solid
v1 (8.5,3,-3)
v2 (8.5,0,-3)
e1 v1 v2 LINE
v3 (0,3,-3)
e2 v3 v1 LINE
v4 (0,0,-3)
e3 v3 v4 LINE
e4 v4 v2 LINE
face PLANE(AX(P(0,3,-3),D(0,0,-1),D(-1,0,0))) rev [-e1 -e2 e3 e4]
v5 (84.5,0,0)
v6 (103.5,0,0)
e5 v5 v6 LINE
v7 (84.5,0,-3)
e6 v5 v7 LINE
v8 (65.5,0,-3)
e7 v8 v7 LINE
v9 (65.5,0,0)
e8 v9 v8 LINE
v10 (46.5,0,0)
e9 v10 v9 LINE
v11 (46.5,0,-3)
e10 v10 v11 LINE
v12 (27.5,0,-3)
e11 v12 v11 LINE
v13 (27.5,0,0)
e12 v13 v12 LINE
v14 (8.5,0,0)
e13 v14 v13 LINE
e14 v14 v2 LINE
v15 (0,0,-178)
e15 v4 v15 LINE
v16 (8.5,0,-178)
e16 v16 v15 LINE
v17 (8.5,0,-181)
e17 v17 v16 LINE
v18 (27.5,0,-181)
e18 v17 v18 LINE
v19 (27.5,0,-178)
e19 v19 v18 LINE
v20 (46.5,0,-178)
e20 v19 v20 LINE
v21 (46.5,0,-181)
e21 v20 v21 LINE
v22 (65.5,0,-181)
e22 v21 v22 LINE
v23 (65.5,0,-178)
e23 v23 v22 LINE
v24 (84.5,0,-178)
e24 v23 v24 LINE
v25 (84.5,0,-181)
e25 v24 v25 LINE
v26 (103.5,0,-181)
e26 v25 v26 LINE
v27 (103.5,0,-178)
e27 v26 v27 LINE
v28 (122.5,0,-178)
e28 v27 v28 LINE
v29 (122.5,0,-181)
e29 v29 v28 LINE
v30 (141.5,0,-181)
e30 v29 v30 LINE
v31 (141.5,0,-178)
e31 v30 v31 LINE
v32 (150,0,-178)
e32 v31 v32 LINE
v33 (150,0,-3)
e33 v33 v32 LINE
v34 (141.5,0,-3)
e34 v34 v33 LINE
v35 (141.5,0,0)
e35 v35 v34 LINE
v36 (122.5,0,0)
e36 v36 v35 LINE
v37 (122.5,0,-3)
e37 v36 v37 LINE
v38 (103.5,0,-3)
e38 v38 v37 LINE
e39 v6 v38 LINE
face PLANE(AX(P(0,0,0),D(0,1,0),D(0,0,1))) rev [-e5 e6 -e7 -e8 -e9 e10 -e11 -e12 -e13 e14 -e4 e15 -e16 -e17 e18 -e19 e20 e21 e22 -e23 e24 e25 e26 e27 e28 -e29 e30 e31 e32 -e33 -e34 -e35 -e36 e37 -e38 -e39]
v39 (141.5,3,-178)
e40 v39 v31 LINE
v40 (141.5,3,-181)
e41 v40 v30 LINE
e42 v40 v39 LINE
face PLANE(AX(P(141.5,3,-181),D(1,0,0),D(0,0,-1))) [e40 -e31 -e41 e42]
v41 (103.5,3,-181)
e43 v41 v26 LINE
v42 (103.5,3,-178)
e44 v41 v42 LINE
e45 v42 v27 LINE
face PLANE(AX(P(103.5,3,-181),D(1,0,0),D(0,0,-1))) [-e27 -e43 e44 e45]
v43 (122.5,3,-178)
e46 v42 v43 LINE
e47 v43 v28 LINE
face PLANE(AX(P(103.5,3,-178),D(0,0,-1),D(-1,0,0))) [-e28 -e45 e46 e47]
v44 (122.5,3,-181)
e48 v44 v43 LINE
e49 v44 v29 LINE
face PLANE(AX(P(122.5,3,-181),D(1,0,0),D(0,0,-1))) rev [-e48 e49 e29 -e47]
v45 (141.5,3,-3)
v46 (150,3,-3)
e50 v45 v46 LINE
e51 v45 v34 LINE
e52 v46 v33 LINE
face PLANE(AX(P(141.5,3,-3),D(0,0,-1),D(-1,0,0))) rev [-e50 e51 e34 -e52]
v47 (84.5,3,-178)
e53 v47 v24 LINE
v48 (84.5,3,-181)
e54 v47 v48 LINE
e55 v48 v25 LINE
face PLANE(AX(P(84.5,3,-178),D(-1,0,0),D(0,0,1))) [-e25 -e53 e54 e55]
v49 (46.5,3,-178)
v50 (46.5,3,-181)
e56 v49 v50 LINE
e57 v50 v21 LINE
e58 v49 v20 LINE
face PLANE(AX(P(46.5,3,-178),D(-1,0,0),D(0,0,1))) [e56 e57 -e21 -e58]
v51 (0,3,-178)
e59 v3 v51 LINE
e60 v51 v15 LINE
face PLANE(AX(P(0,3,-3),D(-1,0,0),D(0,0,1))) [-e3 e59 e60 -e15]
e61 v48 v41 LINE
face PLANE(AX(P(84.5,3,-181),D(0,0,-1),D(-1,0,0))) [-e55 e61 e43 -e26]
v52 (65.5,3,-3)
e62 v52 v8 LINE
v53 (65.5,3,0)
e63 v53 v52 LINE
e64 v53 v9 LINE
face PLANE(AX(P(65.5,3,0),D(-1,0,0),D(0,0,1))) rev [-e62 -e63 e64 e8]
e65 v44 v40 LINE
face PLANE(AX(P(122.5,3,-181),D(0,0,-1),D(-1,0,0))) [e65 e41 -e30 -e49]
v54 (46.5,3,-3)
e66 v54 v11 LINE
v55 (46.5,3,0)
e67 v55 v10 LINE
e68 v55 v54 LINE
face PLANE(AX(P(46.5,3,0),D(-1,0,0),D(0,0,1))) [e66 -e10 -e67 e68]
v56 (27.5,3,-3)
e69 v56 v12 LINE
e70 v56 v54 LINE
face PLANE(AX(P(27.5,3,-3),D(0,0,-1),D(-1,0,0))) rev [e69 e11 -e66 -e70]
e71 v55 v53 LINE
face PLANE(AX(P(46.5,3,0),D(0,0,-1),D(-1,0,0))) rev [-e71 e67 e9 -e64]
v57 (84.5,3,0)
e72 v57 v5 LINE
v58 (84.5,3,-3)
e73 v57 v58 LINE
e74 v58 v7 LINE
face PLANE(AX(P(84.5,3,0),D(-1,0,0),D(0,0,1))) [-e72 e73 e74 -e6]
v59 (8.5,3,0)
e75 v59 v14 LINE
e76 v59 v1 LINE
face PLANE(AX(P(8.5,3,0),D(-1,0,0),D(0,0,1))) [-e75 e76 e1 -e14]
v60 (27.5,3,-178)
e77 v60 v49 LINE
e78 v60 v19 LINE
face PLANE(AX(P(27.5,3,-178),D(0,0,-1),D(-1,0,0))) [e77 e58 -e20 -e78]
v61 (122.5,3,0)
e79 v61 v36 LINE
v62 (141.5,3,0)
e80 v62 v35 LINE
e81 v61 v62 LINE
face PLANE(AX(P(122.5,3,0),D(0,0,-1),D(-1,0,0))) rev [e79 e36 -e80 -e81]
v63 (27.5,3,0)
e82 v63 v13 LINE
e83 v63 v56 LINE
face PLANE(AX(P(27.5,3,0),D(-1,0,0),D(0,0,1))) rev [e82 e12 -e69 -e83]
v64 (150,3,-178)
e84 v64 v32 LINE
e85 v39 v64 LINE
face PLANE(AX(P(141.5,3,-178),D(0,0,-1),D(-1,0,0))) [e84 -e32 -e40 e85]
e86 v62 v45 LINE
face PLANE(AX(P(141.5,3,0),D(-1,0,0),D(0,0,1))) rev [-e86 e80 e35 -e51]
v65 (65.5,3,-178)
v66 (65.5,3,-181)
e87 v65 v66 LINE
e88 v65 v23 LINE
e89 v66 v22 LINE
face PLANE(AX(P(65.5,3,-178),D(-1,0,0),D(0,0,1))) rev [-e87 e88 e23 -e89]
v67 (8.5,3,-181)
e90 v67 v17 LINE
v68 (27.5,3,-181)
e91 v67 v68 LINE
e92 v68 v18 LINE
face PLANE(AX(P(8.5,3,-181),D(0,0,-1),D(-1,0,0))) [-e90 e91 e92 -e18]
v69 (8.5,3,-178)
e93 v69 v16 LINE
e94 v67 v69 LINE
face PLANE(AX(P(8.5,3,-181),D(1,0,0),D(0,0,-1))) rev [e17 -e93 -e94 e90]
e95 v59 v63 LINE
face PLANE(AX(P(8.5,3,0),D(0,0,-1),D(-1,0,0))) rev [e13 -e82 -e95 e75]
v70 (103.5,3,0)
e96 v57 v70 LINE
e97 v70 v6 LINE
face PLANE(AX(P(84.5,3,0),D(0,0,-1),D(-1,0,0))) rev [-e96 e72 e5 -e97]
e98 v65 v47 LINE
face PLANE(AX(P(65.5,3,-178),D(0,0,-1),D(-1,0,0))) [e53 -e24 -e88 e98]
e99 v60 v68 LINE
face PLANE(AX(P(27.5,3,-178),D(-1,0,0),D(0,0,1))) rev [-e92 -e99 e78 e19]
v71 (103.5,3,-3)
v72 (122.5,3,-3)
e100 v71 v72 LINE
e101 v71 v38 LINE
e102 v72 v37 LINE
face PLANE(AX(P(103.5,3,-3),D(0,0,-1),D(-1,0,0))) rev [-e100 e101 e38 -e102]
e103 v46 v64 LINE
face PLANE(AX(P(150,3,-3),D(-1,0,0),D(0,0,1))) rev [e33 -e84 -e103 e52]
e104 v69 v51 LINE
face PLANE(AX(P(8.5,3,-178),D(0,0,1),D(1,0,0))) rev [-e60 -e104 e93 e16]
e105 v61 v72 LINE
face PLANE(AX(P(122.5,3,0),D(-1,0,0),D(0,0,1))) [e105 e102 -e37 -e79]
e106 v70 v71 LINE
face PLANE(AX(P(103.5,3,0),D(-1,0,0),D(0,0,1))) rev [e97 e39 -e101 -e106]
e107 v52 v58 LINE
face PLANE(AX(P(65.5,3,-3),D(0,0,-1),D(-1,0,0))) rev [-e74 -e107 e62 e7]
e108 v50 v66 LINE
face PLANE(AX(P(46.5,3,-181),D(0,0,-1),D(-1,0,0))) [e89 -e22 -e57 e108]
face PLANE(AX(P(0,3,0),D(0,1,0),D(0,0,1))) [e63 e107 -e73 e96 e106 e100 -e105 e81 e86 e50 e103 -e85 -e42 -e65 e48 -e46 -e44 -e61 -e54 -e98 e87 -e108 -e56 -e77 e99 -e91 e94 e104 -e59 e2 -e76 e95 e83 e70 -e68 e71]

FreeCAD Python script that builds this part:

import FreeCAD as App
import Part
import Sketcher

V = App.Vector

doc = App.newDocument("Part")
params = doc.addObject("Spreadsheet::Sheet", "Params")
for row, (alias, value) in enumerate([
    ("sketch1_width", "19 mm"),
    ("sketch1_height", "3 mm"),
    ("sketch1_height2", "175 mm"),
    ("sketch1_width2", "8.5 mm"),
    ("pad1_length", "3 mm"),
], start=1):
    params.set(f"A{row}", alias)
    params.set(f"B{row}", "=" + value)
    params.setAlias(f"B{row}", alias)

body = doc.addObject("PartDesign::Body", "Body")

sketch1 = body.newObject("Sketcher::SketchObject", "Sketch")
sketch1.AttachmentSupport = (doc.getObject("XZ_Plane"), [""])
sketch1.MapMode = "FlatFace"
sketch1.addGeometry([
    Part.LineSegment(V(65.5, -181, 0), V(46.5, -181, 0)),
    Part.LineSegment(V(46.5, -181, 0), V(46.5, -178, 0)),
    Part.LineSegment(V(46.5, -178, 0), V(27.5, -178, 0)),
    Part.LineSegment(V(27.5, -178, 0), V(27.5, -181, 0)),
    Part.LineSegment(V(27.5, -181, 0), V(8.5, -181, 0)),
    Part.LineSegment(V(8.5, -181, 0), V(8.5, -178, 0)),
    Part.LineSegment(V(8.5, -178, 0), V(0, -178, 0)),
    Part.LineSegment(V(0, -178, 0), V(0, -3, 0)),
    Part.LineSegment(V(0, -3, 0), V(8.5, -3, 0)),
    Part.LineSegment(V(8.5, -3, 0), V(8.5, 0, 0)),
    Part.LineSegment(V(8.5, 0, 0), V(27.5, 0, 0)),
    Part.LineSegment(V(27.5, 0, 0), V(27.5, -3, 0)),
    Part.LineSegment(V(27.5, -3, 0), V(46.5, -3, 0)),
    Part.LineSegment(V(46.5, -3, 0), V(46.5, 0, 0)),
    Part.LineSegment(V(46.5, 0, 0), V(65.5, 0, 0)),
    Part.LineSegment(V(65.5, 0, 0), V(65.5, -3, 0)),
    Part.LineSegment(V(65.5, -3, 0), V(84.5, -3, 0)),
    Part.LineSegment(V(84.5, -3, 0), V(84.5, 0, 0)),
    Part.LineSegment(V(84.5, 0, 0), V(103.5, 0, 0)),
    Part.LineSegment(V(103.5, 0, 0), V(103.5, -3, 0)),
    Part.LineSegment(V(103.5, -3, 0), V(122.5, -3, 0)),
    Part.LineSegment(V(122.5, -3, 0), V(122.5, 0, 0)),
    Part.LineSegment(V(122.5, 0, 0), V(141.5, 0, 0)),
    Part.LineSegment(V(141.5, 0, 0), V(141.5, -3, 0)),
    Part.LineSegment(V(141.5, -3, 0), V(150, -3, 0)),
    Part.LineSegment(V(150, -3, 0), V(150, -178, 0)),
    Part.LineSegment(V(150, -178, 0), V(141.5, -178, 0)),
    Part.LineSegment(V(141.5, -178, 0), V(141.5, -181, 0)),
    Part.LineSegment(V(141.5, -181, 0), V(122.5, -181, 0)),
    Part.LineSegment(V(122.5, -181, 0), V(122.5, -178, 0)),
    Part.LineSegment(V(122.5, -178, 0), V(103.5, -178, 0)),
    Part.LineSegment(V(103.5, -178, 0), V(103.5, -181, 0)),
    Part.LineSegment(V(103.5, -181, 0), V(84.5, -181, 0)),
    Part.LineSegment(V(84.5, -181, 0), V(84.5, -178, 0)),
    Part.LineSegment(V(84.5, -178, 0), V(65.5, -178, 0)),
    Part.LineSegment(V(65.5, -178, 0), V(65.5, -181, 0)),
], False)
sketch1.addConstraint([
    Sketcher.Constraint("Coincident", 0, 2, 1, 1),
    Sketcher.Constraint("Coincident", 1, 2, 2, 1),
    Sketcher.Constraint("Coincident", 2, 2, 3, 1),
    Sketcher.Constraint("Coincident", 3, 2, 4, 1),
    Sketcher.Constraint("Coincident", 4, 2, 5, 1),
    Sketcher.Constraint("Coincident", 5, 2, 6, 1),
    Sketcher.Constraint("Coincident", 6, 2, 7, 1),
    Sketcher.Constraint("Coincident", 7, 2, 8, 1),
    Sketcher.Constraint("Coincident", 8, 2, 9, 1),
    Sketcher.Constraint("Coincident", 9, 2, 10, 1),
    Sketcher.Constraint("Coincident", 10, 2, 11, 1),
    Sketcher.Constraint("Coincident", 11, 2, 12, 1),
    Sketcher.Constraint("Coincident", 12, 2, 13, 1),
    Sketcher.Constraint("Coincident", 13, 2, 14, 1),
    Sketcher.Constraint("Coincident", 14, 2, 15, 1),
    Sketcher.Constraint("Coincident", 15, 2, 16, 1),
    Sketcher.Constraint("Coincident", 16, 2, 17, 1),
    Sketcher.Constraint("Coincident", 17, 2, 18, 1),
    Sketcher.Constraint("Coincident", 18, 2, 19, 1),
    Sketcher.Constraint("Coincident", 19, 2, 20, 1),
    Sketcher.Constraint("Coincident", 20, 2, 21, 1),
    Sketcher.Constraint("Coincident", 21, 2, 22, 1),
    Sketcher.Constraint("Coincident", 22, 2, 23, 1),
    Sketcher.Constraint("Coincident", 23, 2, 24, 1),
    Sketcher.Constraint("Coincident", 24, 2, 25, 1),
    Sketcher.Constraint("Coincident", 25, 2, 26, 1),
    Sketcher.Constraint("Coincident", 26, 2, 27, 1),
    Sketcher.Constraint("Coincident", 27, 2, 28, 1),
    Sketcher.Constraint("Coincident", 28, 2, 29, 1),
    Sketcher.Constraint("Coincident", 29, 2, 30, 1),
    Sketcher.Constraint("Coincident", 30, 2, 31, 1),
    Sketcher.Constraint("Coincident", 31, 2, 32, 1),
    Sketcher.Constraint("Coincident", 32, 2, 33, 1),
    Sketcher.Constraint("Coincident", 33, 2, 34, 1),
    Sketcher.Constraint("Coincident", 34, 2, 35, 1),
    Sketcher.Constraint("Coincident", 35, 2, 0, 1),
    Sketcher.Constraint("Horizontal", 0),
    Sketcher.Constraint("Vertical", 1),
    Sketcher.Constraint("Horizontal", 2),
    Sketcher.Constraint("Vertical", 3),
    Sketcher.Constraint("Horizontal", 4),
    Sketcher.Constraint("Vertical", 5),
    Sketcher.Constraint("Horizontal", 6),
    Sketcher.Constraint("Vertical", 7),
    Sketcher.Constraint("Horizontal", 8),
    Sketcher.Constraint("Vertical", 9),
    Sketcher.Constraint("Horizontal", 10),
    Sketcher.Constraint("Vertical", 11),
    Sketcher.Constraint("Horizontal", 12),
    Sketcher.Constraint("Vertical", 13),
    Sketcher.Constraint("Horizontal", 14),
    Sketcher.Constraint("Vertical", 15),
    Sketcher.Constraint("Horizontal", 16),
    Sketcher.Constraint("Vertical", 17),
    Sketcher.Constraint("Horizontal", 18),
    Sketcher.Constraint("Vertical", 19),
    Sketcher.Constraint("Horizontal", 20),
    Sketcher.Constraint("Vertical", 21),
    Sketcher.Constraint("Horizontal", 22),
    Sketcher.Constraint("Vertical", 23),
    Sketcher.Constraint("Horizontal", 24),
    Sketcher.Constraint("Vertical", 25),
    Sketcher.Constraint("Horizontal", 26),
    Sketcher.Constraint("Vertical", 27),
    Sketcher.Constraint("Horizontal", 28),
    Sketcher.Constraint("Vertical", 29),
    Sketcher.Constraint("Horizontal", 30),
    Sketcher.Constraint("Vertical", 31),
    Sketcher.Constraint("Horizontal", 32),
    Sketcher.Constraint("Vertical", 33),
    Sketcher.Constraint("Horizontal", 34),
    Sketcher.Constraint("Vertical", 35),
    Sketcher.Constraint("PointOnObject", 6, 2, -2),
    Sketcher.Constraint("PointOnObject", 9, 2, -1),
    Sketcher.Constraint("PointOnObject", 13, 2, -1),
    Sketcher.Constraint("PointOnObject", 17, 2, -1),
    Sketcher.Constraint("PointOnObject", 21, 2, -1),
    Sketcher.Constraint("Horizontal", 0, 2, 3, 2),
    Sketcher.Constraint("Horizontal", 2, 2, 5, 2),
    Sketcher.Constraint("Horizontal", 8, 2, 11, 2),
    Sketcher.Constraint("Horizontal", 12, 2, 15, 2),
    Sketcher.Constraint("Horizontal", 16, 2, 19, 2),
    Sketcher.Constraint("Horizontal", 20, 2, 23, 2),
    Sketcher.Constraint("Horizontal", 6, 2, 25, 2),
    Sketcher.Constraint("Horizontal", 4, 2, 27, 2),
    Sketcher.Constraint("Horizontal", 26, 2, 29, 2),
    Sketcher.Constraint("Horizontal", 28, 2, 31, 2),
    Sketcher.Constraint("Horizontal", 30, 2, 33, 2),
    Sketcher.Constraint("Vertical", 5, 2, 8, 2),
    Sketcher.Constraint("Vertical", 3, 2, 10, 2),
    Sketcher.Constraint("Vertical", 1, 2, 12, 2),
    Sketcher.Constraint("Vertical", 23, 2, 26, 2),
    Sketcher.Constraint("Vertical", 21, 2, 28, 2),
    Sketcher.Constraint("Vertical", 19, 2, 30, 2),
    Sketcher.Constraint("Vertical", 17, 2, 32, 2),
    Sketcher.Constraint("Vertical", 15, 2, 34, 2),
    Sketcher.Constraint("Equal", 0, 2),
    Sketcher.Constraint("Equal", 2, 4),
    Sketcher.Constraint("Equal", 14, 16),
    Sketcher.Constraint("Equal", 16, 18),
    Sketcher.Constraint("Equal", 18, 20),
    Sketcher.Constraint("Equal", 20, 22),
    Sketcher.Constraint("Equal", 8, 24),
    Sketcher.Constraint("Equal", 5, 9),
    Sketcher.Constraint("DistanceX", 0, 2, 0, 1, 19.0),
    Sketcher.Constraint("DistanceY", 1, 1, 1, 2, 3.0),
    Sketcher.Constraint("DistanceY", 7, 1, 7, 2, 175.0),
    Sketcher.Constraint("DistanceX", 6, 2, 6, 1, 8.5),
])
sketch1.setExpression("Constraints[104]", "Params.sketch1_width")
sketch1.setExpression("Constraints[105]", "Params.sketch1_height")
sketch1.setExpression("Constraints[106]", "Params.sketch1_height2")
sketch1.setExpression("Constraints[107]", "Params.sketch1_width2")
pad1 = body.newObject("PartDesign::Pad", "Pad")
pad1.Profile = sketch1
pad1.setExpression("Length", "Params.pad1_length")
pad1.Reversed = True

doc.recompute()
